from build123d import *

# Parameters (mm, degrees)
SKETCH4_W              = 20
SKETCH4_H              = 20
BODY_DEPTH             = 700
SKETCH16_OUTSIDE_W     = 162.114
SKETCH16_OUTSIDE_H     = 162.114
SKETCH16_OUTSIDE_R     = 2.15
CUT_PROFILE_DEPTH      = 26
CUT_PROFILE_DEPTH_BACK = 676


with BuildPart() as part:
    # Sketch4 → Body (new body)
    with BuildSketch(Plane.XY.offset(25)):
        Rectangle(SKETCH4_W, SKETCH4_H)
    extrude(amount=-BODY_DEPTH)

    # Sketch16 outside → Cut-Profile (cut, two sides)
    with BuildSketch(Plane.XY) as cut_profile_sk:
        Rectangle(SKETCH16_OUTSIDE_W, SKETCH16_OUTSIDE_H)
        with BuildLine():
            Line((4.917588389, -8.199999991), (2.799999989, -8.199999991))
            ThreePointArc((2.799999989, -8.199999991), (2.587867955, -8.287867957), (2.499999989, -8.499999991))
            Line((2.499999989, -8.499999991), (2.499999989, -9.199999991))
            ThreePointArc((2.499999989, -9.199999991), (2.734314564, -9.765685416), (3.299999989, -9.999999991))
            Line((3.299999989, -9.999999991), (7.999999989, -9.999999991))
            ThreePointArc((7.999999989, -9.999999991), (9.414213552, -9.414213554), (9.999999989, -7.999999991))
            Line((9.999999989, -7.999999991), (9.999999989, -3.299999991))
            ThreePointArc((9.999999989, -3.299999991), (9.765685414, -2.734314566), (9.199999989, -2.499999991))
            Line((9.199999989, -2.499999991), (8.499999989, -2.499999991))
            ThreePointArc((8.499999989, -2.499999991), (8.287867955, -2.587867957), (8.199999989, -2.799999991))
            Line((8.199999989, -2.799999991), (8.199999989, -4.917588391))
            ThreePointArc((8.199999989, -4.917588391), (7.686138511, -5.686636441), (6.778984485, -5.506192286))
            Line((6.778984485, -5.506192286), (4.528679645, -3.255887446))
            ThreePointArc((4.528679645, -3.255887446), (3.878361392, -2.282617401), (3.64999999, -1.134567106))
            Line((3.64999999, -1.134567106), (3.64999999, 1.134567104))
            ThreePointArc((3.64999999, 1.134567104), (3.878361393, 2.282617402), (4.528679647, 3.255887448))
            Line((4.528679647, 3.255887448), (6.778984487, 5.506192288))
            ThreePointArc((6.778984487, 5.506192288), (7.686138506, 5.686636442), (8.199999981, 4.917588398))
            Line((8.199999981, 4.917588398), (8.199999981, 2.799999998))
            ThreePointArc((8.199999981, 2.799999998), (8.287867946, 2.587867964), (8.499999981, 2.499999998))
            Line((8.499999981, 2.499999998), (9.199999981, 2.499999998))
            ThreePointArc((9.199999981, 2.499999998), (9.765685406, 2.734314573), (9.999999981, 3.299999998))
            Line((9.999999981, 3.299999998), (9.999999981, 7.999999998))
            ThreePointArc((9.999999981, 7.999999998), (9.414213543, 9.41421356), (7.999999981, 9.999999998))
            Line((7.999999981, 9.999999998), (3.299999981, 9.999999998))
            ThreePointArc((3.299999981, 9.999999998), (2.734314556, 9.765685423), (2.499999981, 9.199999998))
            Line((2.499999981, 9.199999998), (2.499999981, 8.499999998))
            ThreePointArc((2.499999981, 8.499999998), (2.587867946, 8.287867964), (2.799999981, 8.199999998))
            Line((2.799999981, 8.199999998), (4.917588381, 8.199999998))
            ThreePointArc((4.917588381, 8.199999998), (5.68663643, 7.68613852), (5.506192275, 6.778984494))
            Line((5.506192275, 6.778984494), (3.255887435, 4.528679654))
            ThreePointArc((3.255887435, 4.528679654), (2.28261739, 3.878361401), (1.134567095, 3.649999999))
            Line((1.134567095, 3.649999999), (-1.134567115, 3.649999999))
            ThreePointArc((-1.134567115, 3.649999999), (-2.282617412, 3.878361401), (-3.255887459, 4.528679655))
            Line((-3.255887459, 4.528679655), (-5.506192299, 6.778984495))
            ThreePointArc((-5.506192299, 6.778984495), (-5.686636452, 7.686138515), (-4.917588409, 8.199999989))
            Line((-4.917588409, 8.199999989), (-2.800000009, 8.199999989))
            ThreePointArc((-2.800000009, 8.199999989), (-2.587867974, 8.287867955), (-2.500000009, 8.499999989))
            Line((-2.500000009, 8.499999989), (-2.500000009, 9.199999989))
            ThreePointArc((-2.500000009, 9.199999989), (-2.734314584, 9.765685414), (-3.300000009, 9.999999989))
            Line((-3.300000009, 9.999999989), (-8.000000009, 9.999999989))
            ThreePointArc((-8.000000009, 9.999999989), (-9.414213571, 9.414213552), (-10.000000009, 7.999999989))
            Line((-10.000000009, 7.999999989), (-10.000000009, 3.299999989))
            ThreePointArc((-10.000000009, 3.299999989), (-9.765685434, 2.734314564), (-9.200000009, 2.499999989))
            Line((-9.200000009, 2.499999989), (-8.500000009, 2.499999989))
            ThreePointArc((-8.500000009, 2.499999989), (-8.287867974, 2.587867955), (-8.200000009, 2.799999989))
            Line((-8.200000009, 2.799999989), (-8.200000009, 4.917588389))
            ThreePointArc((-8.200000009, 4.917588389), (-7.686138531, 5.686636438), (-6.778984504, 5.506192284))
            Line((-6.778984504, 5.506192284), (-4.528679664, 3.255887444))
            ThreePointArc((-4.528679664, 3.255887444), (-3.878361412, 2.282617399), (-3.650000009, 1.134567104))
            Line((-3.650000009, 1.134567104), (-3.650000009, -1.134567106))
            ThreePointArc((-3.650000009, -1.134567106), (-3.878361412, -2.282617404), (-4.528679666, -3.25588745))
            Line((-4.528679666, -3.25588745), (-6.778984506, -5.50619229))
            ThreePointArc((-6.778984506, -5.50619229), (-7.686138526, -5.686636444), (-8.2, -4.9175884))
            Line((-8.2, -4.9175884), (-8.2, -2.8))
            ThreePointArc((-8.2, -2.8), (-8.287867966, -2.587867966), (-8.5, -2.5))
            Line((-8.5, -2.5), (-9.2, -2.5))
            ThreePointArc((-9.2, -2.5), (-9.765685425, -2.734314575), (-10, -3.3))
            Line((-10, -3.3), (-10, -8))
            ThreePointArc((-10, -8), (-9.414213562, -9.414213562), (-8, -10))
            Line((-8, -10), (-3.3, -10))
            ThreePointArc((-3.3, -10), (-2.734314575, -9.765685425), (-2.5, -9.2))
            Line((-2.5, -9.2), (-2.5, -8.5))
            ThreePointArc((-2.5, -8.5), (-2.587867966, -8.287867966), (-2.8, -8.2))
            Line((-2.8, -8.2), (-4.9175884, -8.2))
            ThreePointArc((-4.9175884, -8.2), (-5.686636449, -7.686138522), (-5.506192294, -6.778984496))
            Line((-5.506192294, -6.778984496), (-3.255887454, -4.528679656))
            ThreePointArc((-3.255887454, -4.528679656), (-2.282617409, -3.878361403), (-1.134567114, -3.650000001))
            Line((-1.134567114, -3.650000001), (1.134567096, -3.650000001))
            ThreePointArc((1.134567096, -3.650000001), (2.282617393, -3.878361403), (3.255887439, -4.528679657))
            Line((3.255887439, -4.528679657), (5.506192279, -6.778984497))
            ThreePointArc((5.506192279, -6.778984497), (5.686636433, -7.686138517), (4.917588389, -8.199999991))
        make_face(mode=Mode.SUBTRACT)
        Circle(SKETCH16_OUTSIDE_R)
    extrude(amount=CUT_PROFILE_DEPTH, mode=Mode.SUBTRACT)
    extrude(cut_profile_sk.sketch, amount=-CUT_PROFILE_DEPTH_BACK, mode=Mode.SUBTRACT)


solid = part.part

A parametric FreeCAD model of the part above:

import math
import FreeCAD as App
import Part
import Sketcher
Q = App.Units.Quantity


def add_polygon(sketch, points):
    """Adds a closed chain of lines whose ends are joined by coincident constraints."""
    first, n = sketch.GeometryCount, len(points)
    for a, b in zip(points, points[1:] + points[:1]):
        sketch.addGeometry(Part.LineSegment(App.Vector(*a, 0), App.Vector(*b, 0)), False)
    for i in range(n):
        sketch.addConstraint(Sketcher.Constraint("Coincident", first + i, 2, first + (i + 1) % n, 1))

doc = App.newDocument("Part")
body = doc.addObject("PartDesign::Body", "Body")

# Sketch on XY plane
sketch1 = body.newObject("Sketcher::SketchObject", "Sketch")
sketch1.AttachmentSupport = (doc.getObject("XY_Plane"), [""])
sketch1.MapMode = "FlatFace"
sketch1.AttachmentOffset = App.Placement(App.Vector(0, 0, 25), App.Rotation())
add_polygon(sketch1, [(-10, 10), (-10, -10), (10, -10), (10, 10)])  # lines 0-3
sketch1.addConstraint([
    Sketcher.Constraint("Vertical", 0),
    Sketcher.Constraint("Horizontal", 1),
    Sketcher.Constraint("Vertical", 2),
    Sketcher.Constraint("Horizontal", 3),
    Sketcher.Constraint("Symmetric", 0, 2, 2, 2, -1, 1),
    Sketcher.Constraint("Equal", 3, 0),
    Sketcher.Constraint("DistanceX", 1, 1, 1, 2, Q("20 mm")),
])
pad1 = body.newObject("PartDesign::Pad", "Pad")
pad1.Profile = sketch1
pad1.Length = 700
pad1.Reversed = True

# Sketch on XY plane
sketch2 = body.newObject("Sketcher::SketchObject", "Sketch001")
sketch2.AttachmentSupport = (doc.getObject("XY_Plane"), [""])
sketch2.MapMode = "FlatFace"
add_polygon(sketch2, [(-81.057, 81.057), (-81.057, -81.057), (81.057, -81.057), (81.057, 81.057)])  # lines 0-3
sketch2.addGeometry(Part.LineSegment(App.Vector(2.8, -8.2, 0), App.Vector(4.917588, -8.2, 0)), False)  # 4
sketch2.addGeometry(Part.ArcOfCircle(Part.Circle(App.Vector(4.917588, -7.367588, 0), App.Vector(0, 0, 1), 0.832412), math.radians(-90), math.radians(45)), False)  # 5
sketch2.addGeometry(Part.LineSegment(App.Vector(5.506192, -6.778984, 0), App.Vector(3.255887, -4.52868, 0)), False)  # 6
sketch2.addGeometry(Part.ArcOfCircle(Part.Circle(App.Vector(1.134567, -6.65, 0), App.Vector(0, 0, 1), 3), math.radians(45), math.radians(90)), False)  # 7
sketch2.addGeometry(Part.LineSegment(App.Vector(1.134567, -3.65, 0), App.Vector(-1.134567, -3.65, 0)), False)  # 8
sketch2.addGeometry(Part.ArcOfCircle(Part.Circle(App.Vector(-1.134567, -6.65, 0), App.Vector(0, 0, 1), 3), math.radians(90), math.radians(135)), False)  # 9
sketch2.addGeometry(Part.LineSegment(App.Vector(-3.255887, -4.52868, 0), App.Vector(-5.506192, -6.778984, 0)), False)  # 10
sketch2.addGeometry(Part.ArcOfCircle(Part.Circle(App.Vector(-4.917588, -7.367588, 0), App.Vector(0, 0, 1), 0.832412), math.radians(135), math.radians(270)), False)  # 11
sketch2.addGeometry(Part.LineSegment(App.Vector(-4.917588, -8.2, 0), App.Vector(-2.8, -8.2, 0)), False)  # 12
sketch2.addGeometry(Part.ArcOfCircle(Part.Circle(App.Vector(-2.8, -8.5, 0), App.Vector(0, 0, 1), 0.3), math.radians(0), math.radians(90)), False)  # 13
sketch2.addGeometry(Part.LineSegment(App.Vector(-2.5, -8.5, 0), App.Vector(-2.5, -9.2, 0)), False)  # 14
sketch2.addGeometry(Part.ArcOfCircle(Part.Circle(App.Vector(-3.3, -9.2, 0), App.Vector(0, 0, 1), 0.8), math.radians(-90), math.radians(0)), False)  # 15
sketch2.addGeometry(Part.LineSegment(App.Vector(-3.3, -10, 0), App.Vector(-8, -10, 0)), False)  # 16
sketch2.addGeometry(Part.ArcOfCircle(Part.Circle(App.Vector(-8, -8, 0), App.Vector(0, 0, 1), 2), math.radians(-180), math.radians(-90)), False)  # 17
sketch2.addGeometry(Part.LineSegment(App.Vector(-10, -8, 0), App.Vector(-10, -3.3, 0)), False)  # 18
sketch2.addGeometry(Part.ArcOfCircle(Part.Circle(App.Vector(-9.2, -3.3, 0), App.Vector(0, 0, 1), 0.8), math.radians(90), math.radians(180)), False)  # 19
sketch2.addGeometry(Part.LineSegment(App.Vector(-9.2, -2.5, 0), App.Vector(-8.5, -2.5, 0)), False)  # 20
sketch2.addGeometry(Part.ArcOfCircle(Part.Circle(App.Vector(-8.5, -2.8, 0), App.Vector(0, 0, 1), 0.3), math.radians(0), math.radians(90)), False)  # 21
sketch2.addGeometry(Part.LineSegment(App.Vector(-8.2, -2.8, 0), App.Vector(-8.2, -4.917588, 0)), False)  # 22
sketch2.addGeometry(Part.ArcOfCircle(Part.Circle(App.Vector(-7.367588, -4.917588, 0), App.Vector(0, 0, 1), 0.832412), math.radians(180), math.radians(315)), False)  # 23
sketch2.addGeometry(Part.LineSegment(App.Vector(-6.778985, -5.506192, 0), App.Vector(-4.52868, -3.255887, 0)), False)  # 24
sketch2.addGeometry(Part.ArcOfCircle(Part.Circle(App.Vector(-6.65, -1.134567, 0), App.Vector(0, 0, 1), 3), math.radians(-45), math.radians(0)), False)  # 25
sketch2.addGeometry(Part.LineSegment(App.Vector(-3.65, -1.134567, 0), App.Vector(-3.65, 1.134567, 0)), False)  # 26
sketch2.addGeometry(Part.ArcOfCircle(Part.Circle(App.Vector(-6.65, 1.134567, 0), App.Vector(0, 0, 1), 3), math.radians(0), math.radians(45)), False)  # 27
sketch2.addGeometry(Part.LineSegment(App.Vector(-4.52868, 3.255887, 0), App.Vector(-6.778985, 5.506192, 0)), False)  # 28
sketch2.addGeometry(Part.ArcOfCircle(Part.Circle(App.Vector(-7.367588, 4.917588, 0), App.Vector(0, 0, 1), 0.832412), math.radians(45), math.radians(180)), False)  # 29
sketch2.addGeometry(Part.LineSegment(App.Vector(-8.2, 4.917588, 0), App.Vector(-8.2, 2.8, 0)), False)  # 30
sketch2.addGeometry(Part.ArcOfCircle(Part.Circle(App.Vector(-8.5, 2.8, 0), App.Vector(0, 0, 1), 0.3), math.radians(-90), math.radians(0)), False)  # 31
sketch2.addGeometry(Part.LineSegment(App.Vector(-8.5, 2.5, 0), App.Vector(-9.2, 2.5, 0)), False)  # 32
sketch2.addGeometry(Part.ArcOfCircle(Part.Circle(App.Vector(-9.2, 3.3, 0), App.Vector(0, 0, 1), 0.8), math.radians(180), math.radians(270)), False)  # 33
sketch2.addGeometry(Part.LineSegment(App.Vector(-10, 3.3, 0), App.Vector(-10, 8, 0)), False)  # 34
sketch2.addGeometry(Part.ArcOfCircle(Part.Circle(App.Vector(-8, 8, 0), App.Vector(0, 0, 1), 2), math.radians(90), math.radians(180)), False)  # 35
sketch2.addGeometry(Part.LineSegment(App.Vector(-8, 10, 0), App.Vector(-3.3, 10, 0)), False)  # 36
sketch2.addGeometry(Part.ArcOfCircle(Part.Circle(App.Vector(-3.3, 9.2, 0), App.Vector(0, 0, 1), 0.8), math.radians(0), math.radians(90)), False)  # 37
sketch2.addGeometry(Part.LineSegment(App.Vector(-2.5, 9.2, 0), App.Vector(-2.5, 8.5, 0)), False)  # 38
sketch2.addGeometry(Part.ArcOfCircle(Part.Circle(App.Vector(-2.8, 8.5, 0), App.Vector(0, 0, 1), 0.3), math.radians(-90), math.radians(0)), False)  # 39
sketch2.addGeometry(Part.LineSegment(App.Vector(-2.8, 8.2, 0), App.Vector(-4.917588, 8.2, 0)), False)  # 40
sketch2.addGeometry(Part.ArcOfCircle(Part.Circle(App.Vector(-4.917588, 7.367588, 0), App.Vector(0, 0, 1), 0.832412), math.radians(90), math.radians(225)), False)  # 41
sketch2.addGeometry(Part.LineSegment(App.Vector(-5.506192, 6.778984, 0), App.Vector(-3.255887, 4.52868, 0)), False)  # 42
sketch2.addGeometry(Part.ArcOfCircle(Part.Circle(App.Vector(-1.134567, 6.65, 0), App.Vector(0, 0, 1), 3), math.radians(-135), math.radians(-90)), False)  # 43
sketch2.addGeometry(Part.LineSegment(App.Vector(-1.134567, 3.65, 0), App.Vector(1.134567, 3.65, 0)), False)  # 44
sketch2.addGeometry(Part.ArcOfCircle(Part.Circle(App.Vector(1.134567, 6.65, 0), App.Vector(0, 0, 1), 3), math.radians(-90), math.radians(-45)), False)  # 45
sketch2.addGeometry(Part.LineSegment(App.Vector(3.255887, 4.52868, 0), App.Vector(5.506192, 6.778984, 0)), False)  # 46
sketch2.addGeometry(Part.ArcOfCircle(Part.Circle(App.Vector(4.917588, 7.367588, 0), App.Vector(0, 0, 1), 0.832412), math.radians(-45), math.radians(90)), False)  # 47
sketch2.addGeometry(Part.LineSegment(App.Vector(4.917588, 8.2, 0), App.Vector(2.8, 8.2, 0)), False)  # 48
sketch2.addGeometry(Part.ArcOfCircle(Part.Circle(App.Vector(2.8, 8.5, 0), App.Vector(0, 0, 1), 0.3), math.radians(180), math.radians(270)), False)  # 49
sketch2.addGeometry(Part.LineSegment(App.Vector(2.5, 8.5, 0), App.Vector(2.5, 9.2, 0)), False)  # 50
sketch2.addGeometry(Part.ArcOfCircle(Part.Circle(App.Vector(3.3, 9.2, 0), App.Vector(0, 0, 1), 0.8), math.radians(90), math.radians(180)), False)  # 51
sketch2.addGeometry(Part.LineSegment(App.Vector(3.3, 10, 0), App.Vector(8, 10, 0)), False)  # 52
sketch2.addGeometry(Part.ArcOfCircle(Part.Circle(App.Vector(8, 8, 0), App.Vector(0, 0, 1), 2), math.radians(0), math.radians(90)), False)  # 53
sketch2.addGeometry(Part.LineSegment(App.Vector(10, 8, 0), App.Vector(10, 3.3, 0)), False)  # 54
sketch2.addGeometry(Part.ArcOfCircle(Part.Circle(App.Vector(9.2, 3.3, 0), App.Vector(0, 0, 1), 0.8), math.radians(-90), math.radians(0)), False)  # 55
sketch2.addGeometry(Part.LineSegment(App.Vector(9.2, 2.5, 0), App.Vector(8.5, 2.5, 0)), False)  # 56
sketch2.addGeometry(Part.ArcOfCircle(Part.Circle(App.Vector(8.5, 2.8, 0), App.Vector(0, 0, 1), 0.3), math.radians(180), math.radians(270)), False)  # 57
sketch2.addGeometry(Part.LineSegment(App.Vector(8.2, 2.8, 0), App.Vector(8.2, 4.917588, 0)), False)  # 58
sketch2.addGeometry(Part.ArcOfCircle(Part.Circle(App.Vector(7.367588, 4.917588, 0), App.Vector(0, 0, 1), 0.832412), math.radians(0), math.radians(135)), False)  # 59
sketch2.addGeometry(Part.LineSegment(App.Vector(6.778984, 5.506192, 0), App.Vector(4.52868, 3.255887, 0)), False)  # 60
sketch2.addGeometry(Part.ArcOfCircle(Part.Circle(App.Vector(6.65, 1.134567, 0), App.Vector(0, 0, 1), 3), math.radians(135), math.radians(180)), False)  # 61
sketch2.addGeometry(Part.LineSegment(App.Vector(3.65, 1.134567, 0), App.Vector(3.65, -1.134567, 0)), False)  # 62
sketch2.addGeometry(Part.ArcOfCircle(Part.Circle(App.Vector(6.65, -1.134567, 0), App.Vector(0, 0, 1), 3), math.radians(180), math.radians(225)), False)  # 63
sketch2.addGeometry(Part.LineSegment(App.Vector(4.52868, -3.255887, 0), App.Vector(6.778984, -5.506192, 0)), False)  # 64
sketch2.addGeometry(Part.ArcOfCircle(Part.Circle(App.Vector(7.367588, -4.917588, 0), App.Vector(0, 0, 1), 0.832412), math.radians(-135), math.radians(0)), False)  # 65
sketch2.addGeometry(Part.LineSegment(App.Vector(8.2, -4.917588, 0), App.Vector(8.2, -2.8, 0)), False)  # 66
sketch2.addGeometry(Part.ArcOfCircle(Part.Circle(App.Vector(8.5, -2.8, 0), App.Vector(0, 0, 1), 0.3), math.radians(90), math.radians(180)), False)  # 67
sketch2.addGeometry(Part.LineSegment(App.Vector(8.5, -2.5, 0), App.Vector(9.2, -2.5, 0)), False)  # 68
sketch2.addGeometry(Part.ArcOfCircle(Part.Circle(App.Vector(9.2, -3.3, 0), App.Vector(0, 0, 1), 0.8), math.radians(0), math.radians(90)), False)  # 69
sketch2.addGeometry(Part.LineSegment(App.Vector(10, -3.3, 0), App.Vector(10, -8, 0)), False)  # 70
sketch2.addGeometry(Part.ArcOfCircle(Part.Circle(App.Vector(8, -8, 0), App.Vector(0, 0, 1), 2), math.radians(-90), math.radians(0)), False)  # 71
sketch2.addGeometry(Part.LineSegment(App.Vector(8, -10, 0), App.Vector(3.3, -10, 0)), False)  # 72
sketch2.addGeometry(Part.ArcOfCircle(Part.Circle(App.Vector(3.3, -9.2, 0), App.Vector(0, 0, 1), 0.8), math.radians(180), math.radians(270)), False)  # 73
sketch2.addGeometry(Part.LineSegment(App.Vector(2.5, -9.2, 0), App.Vector(2.5, -8.5, 0)), False)  # 74
sketch2.addGeometry(Part.ArcOfCircle(Part.Circle(App.Vector(2.8, -8.5, 0), App.Vector(0, 0, 1), 0.3), math.radians(90), math.radians(180)), False)  # 75
sketch2.addGeometry(Part.Circle(App.Vector(0, 0, 0), App.Vector(0, 0, 1), 2.15), False)  # 76
sketch2.addConstraint([
    Sketcher.Constraint("Tangent", 4, 2, 5, 1),
    Sketcher.Constraint("Tangent", 5, 2, 6, 1),
    Sketcher.Constraint("Tangent", 6, 2, 7, 1),
    Sketcher.Constraint("Tangent", 7, 2, 8, 1),
    Sketcher.Constraint("Tangent", 8, 2, 9, 1),
    Sketcher.Constraint("Tangent", 9, 2, 10, 1),
    Sketcher.Constraint("Tangent", 10, 2, 11, 1),
    Sketcher.Constraint("Tangent", 11, 2, 12, 1),
    Sketcher.Constraint("Tangent", 12, 2, 13, 2),
    Sketcher.Constraint("Tangent", 13, 1, 14, 1),
    Sketcher.Constraint("Tangent", 14, 2, 15, 2),
    Sketcher.Constraint("Tangent", 15, 1, 16, 1),
    Sketcher.Constraint("Tangent", 16, 2, 17, 2),
    Sketcher.Constraint("Tangent", 17, 1, 18, 1),
    Sketcher.Constraint("Tangent", 18, 2, 19, 2),
    Sketcher.Constraint("Tangent", 19, 1, 20, 1),
    Sketcher.Constraint("Tangent", 20, 2, 21, 2),
    Sketcher.Constraint("Tangent", 21, 1, 22, 1),
    Sketcher.Constraint("Tangent", 22, 2, 23, 1),
    Sketcher.Constraint("Tangent", 23, 2, 24, 1),
    Sketcher.Constraint("Tangent", 24, 2, 25, 1),
    Sketcher.Constraint("Tangent", 25, 2, 26, 1),
    Sketcher.Constraint("Tangent", 26, 2, 27, 1),
    Sketcher.Constraint("Tangent", 27, 2, 28, 1),
    Sketcher.Constraint("Tangent", 28, 2, 29, 1),
    Sketcher.Constraint("Tangent", 29, 2, 30, 1),
    Sketcher.Constraint("Tangent", 30, 2, 31, 2),
    Sketcher.Constraint("Tangent", 31, 1, 32, 1),
    Sketcher.Constraint("Tangent", 32, 2, 33, 2),
    Sketcher.Constraint("Tangent", 33, 1, 34, 1),
    Sketcher.Constraint("Tangent", 34, 2, 35, 2),
    Sketcher.Constraint("Tangent", 35, 1, 36, 1),
    Sketcher.Constraint("Tangent", 36, 2, 37, 2),
    Sketcher.Constraint("Tangent", 37, 1, 38, 1),
    Sketcher.Constraint("Tangent", 38, 2, 39, 2),
    Sketcher.Constraint("Tangent", 39, 1, 40, 1),
    Sketcher.Constraint("Tangent", 40, 2, 41, 1),
    Sketcher.Constraint("Tangent", 41, 2, 42, 1),
    Sketcher.Constraint("Tangent", 42, 2, 43, 1),
    Sketcher.Constraint("Tangent", 43, 2, 44, 1),
    Sketcher.Constraint("Tangent", 44, 2, 45, 1),
    Sketcher.Constraint("Tangent", 45, 2, 46, 1),
    Sketcher.Constraint("Tangent", 46, 2, 47, 1),
    Sketcher.Constraint("Tangent", 47, 2, 48, 1),
    Sketcher.Constraint("Tangent", 48, 2, 49, 2),
    Sketcher.Constraint("Tangent", 49, 1, 50, 1),
    Sketcher.Constraint("Tangent", 50, 2, 51, 2),
    Sketcher.Constraint("Tangent", 51, 1, 52, 1),
    Sketcher.Constraint("Tangent", 52, 2, 53, 2),
    Sketcher.Constraint("Tangent", 53, 1, 54, 1),
    Sketcher.Constraint("Tangent", 54, 2, 55, 2),
    Sketcher.Constraint("Tangent", 55, 1, 56, 1),
    Sketcher.Constraint("Tangent", 56, 2, 57, 2),
    Sketcher.Constraint("Tangent", 57, 1, 58, 1),
    Sketcher.Constraint("Tangent", 58, 2, 59, 1),
    Sketcher.Constraint("Tangent", 59, 2, 60, 1),
    Sketcher.Constraint("Tangent", 60, 2, 61, 1),
    Sketcher.Constraint("Tangent", 61, 2, 62, 1),
    Sketcher.Constraint("Tangent", 62, 2, 63, 1),
    Sketcher.Constraint("Tangent", 63, 2, 64, 1),
    Sketcher.Constraint("Tangent", 64, 2, 65, 1),
    Sketcher.Constraint("Tangent", 65, 2, 66, 1),
    Sketcher.Constraint("Tangent", 66, 2, 67, 2),
    Sketcher.Constraint("Tangent", 67, 1, 68, 1),
    Sketcher.Constraint("Tangent", 68, 2, 69, 2),
    Sketcher.Constraint("Tangent", 69, 1, 70, 1),
    Sketcher.Constraint("Tangent", 70, 2, 71, 2),
    Sketcher.Constraint("Tangent", 71, 1, 72, 1),
    Sketcher.Constraint("Tangent", 72, 2, 73, 2),
    Sketcher.Constraint("Tangent", 73, 1, 74, 1),
    Sketcher.Constraint("Tangent", 74, 2, 75, 2),
    Sketcher.Constraint("Tangent", 75, 1, 4, 1),
    Sketcher.Constraint("Vertical", 0),
    Sketcher.Constraint("Horizontal", 1),
    Sketcher.Constraint("Vertical", 2),
    Sketcher.Constraint("Horizontal", 3),
    Sketcher.Constraint("Horizontal", 4),
    Sketcher.Constraint("Horizontal", 8),
    Sketcher.Constraint("Horizontal", 12),
    Sketcher.Constraint("Vertical", 14),
    Sketcher.Constraint("Horizontal", 16),
    Sketcher.Constraint("Vertical", 18),
    Sketcher.Constraint("Horizontal", 20),
    Sketcher.Constraint("Vertical", 22),
    Sketcher.Constraint("Vertical", 26),
    Sketcher.Constraint("Vertical", 30),
    Sketcher.Constraint("Horizontal", 32),
    Sketcher.Constraint("Vertical", 34),
    Sketcher.Constraint("Horizontal", 36),
    Sketcher.Constraint("Vertical", 38),
    Sketcher.Constraint("Horizontal", 40),
    Sketcher.Constraint("Horizontal", 44),
    Sketcher.Constraint("Horizontal", 48),
    Sketcher.Constraint("Vertical", 50),
    Sketcher.Constraint("Horizontal", 52),
    Sketcher.Constraint("Vertical", 54),
    Sketcher.Constraint("Horizontal", 56),
    Sketcher.Constraint("Vertical", 58),
    Sketcher.Constraint("Vertical", 62),
    Sketcher.Constraint("Vertical", 66),
    Sketcher.Constraint("Horizontal", 68),
    Sketcher.Constraint("Vertical", 70),
    Sketcher.Constraint("Horizontal", 72),
    Sketcher.Constraint("Vertical", 74),
    Sketcher.Constraint("Coincident", 76, 3, -1, 1),
    Sketcher.Constraint("Equal", 7, 9),
    Sketcher.Constraint("Equal", 5, 11),
    Sketcher.Constraint("Equal", 15, 19),
    Sketcher.Constraint("Equal", 13, 21),
    Sketcher.Constraint("Equal", 11, 23),
    Sketcher.Constraint("Equal", 9, 25),
    Sketcher.Constraint("Equal", 25, 27),
    Sketcher.Constraint("Equal", 23, 29),
    Sketcher.Constraint("Equal", 21, 31),
    Sketcher.Constraint("Equal", 19, 33),
    Sketcher.Constraint("Equal", 17, 35),
    Sketcher.Constraint("Equal", 33, 37),
    Sketcher.Constraint("Equal", 31, 39),
    Sketcher.Constraint("Equal", 29, 41),
    Sketcher.Constraint("Equal", 27, 43),
    Sketcher.Constraint("Equal", 43, 45),
    Sketcher.Constraint("Equal", 41, 47),
    Sketcher.Constraint("Equal", 39, 49),
    Sketcher.Constraint("Equal", 37, 51),
    Sketcher.Constraint("Equal", 35, 53),
    Sketcher.Constraint("Equal", 51, 55),
    Sketcher.Constraint("Equal", 49, 57),
    Sketcher.Constraint("Equal", 47, 59),
    Sketcher.Constraint("Equal", 45, 61),
    Sketcher.Constraint("Equal", 61, 63),
    Sketcher.Constraint("Equal", 59, 65),
    Sketcher.Constraint("Equal", 57, 67),
    Sketcher.Constraint("Equal", 55, 69),
    Sketcher.Constraint("Equal", 53, 71),
    Sketcher.Constraint("Equal", 69, 73),
    Sketcher.Constraint("Equal", 67, 75),
    Sketcher.Constraint("Symmetric", 5, 3, 41, 3, -1, 1),
    Sketcher.Constraint("Symmetric", 7, 3, 43, 3, -1, 1),
    Sketcher.Constraint("Symmetric", 11, 3, 47, 3, -1, 1),
    Sketcher.Constraint("Symmetric", 15, 3, 51, 3, -1, 1),
    Sketcher.Constraint("Symmetric", 19, 3, 55, 3, -1, 1),
    Sketcher.Constraint("Symmetric", 23, 3, 59, 3, -1, 1),
    Sketcher.Constraint("Symmetric", 25, 3, 61, 3, -1, 1),
    Sketcher.Constraint("Symmetric", 29, 3, 65, 3, -1, 1),
    Sketcher.Constraint("Symmetric", 33, 3, 69, 3, -1, 1),
    Sketcher.Constraint("Symmetric", 37, 3, 73, 3, -1, 1),
    Sketcher.Constraint("Symmetric", 0, 2, 2, 2, -1, 1),
    Sketcher.Constraint("Symmetric", 5, 3, 11, 3, -2),
    Sketcher.Constraint("Symmetric", 37, 3, 51, 3, -2),
    Sketcher.Constraint("Symmetric", 33, 3, 55, 3, -2),
    Sketcher.Constraint("Symmetric", 29, 3, 59, 3, -2),
    Sketcher.Constraint("Perpendicular", 6, 10),
    Sketcher.Constraint("Parallel", 10, 24),
    Sketcher.Constraint("Perpendicular", 24, 28),
    Sketcher.Constraint("Perpendicular", 42, 46),
    Sketcher.Constraint("Perpendicular", 60, 64),
    Sketcher.Constraint("Horizontal", 27, 3, 61, 3),
    Sketcher.Constraint("Equal", 3, 0),
    Sketcher.Constraint("Equal", 68, 14),
    Sketcher.Constraint("Equal", 72, 18),
    Sketcher.Constraint("Equal", 48, 22),
    Sketcher.Constraint("Equal", 44, 26),
    Sketcher.Constraint("Equal", 10, 24),
    Sketcher.Constraint("Radius", 7, Q("3 mm")),
    Sketcher.Constraint("Radius", 17, Q("2 mm")),
    Sketcher.Constraint("Diameter", 76, Q("4.3 mm")),
    Sketcher.Constraint("Radius", 13, Q("0.3 mm")),
    Sketcher.Constraint("Radius", 15, Q("0.8 mm")),
    Sketcher.Constraint("DistanceX", 16, 2, 16, 1, Q("4.7 mm")),
    Sketcher.Constraint("DistanceX", 20, 1, 20, 2, Q("0.7 mm")),
    Sketcher.Constraint("DistanceX", 17, 3, -1, 1, Q("8 mm")),
    Sketcher.Constraint("DistanceX", 1, 1, 1, 2, Q("162.114 mm")),
    Sketcher.Constraint("DistanceY", 7, 3, -1, 1, Q("6.65 mm")),
    Sketcher.Constraint("Radius", 5, Q("0.832412 mm")),
    Sketcher.Constraint("DistanceX", 4, 1, 4, 2, Q("2.117588 mm")),
])
pocket1 = body.newObject("PartDesign::Pocket", "Pocket")
pocket1.Profile = sketch2
pocket1.Type = "ThroughAll"
pocket1.Midplane = True

doc.recompute()
